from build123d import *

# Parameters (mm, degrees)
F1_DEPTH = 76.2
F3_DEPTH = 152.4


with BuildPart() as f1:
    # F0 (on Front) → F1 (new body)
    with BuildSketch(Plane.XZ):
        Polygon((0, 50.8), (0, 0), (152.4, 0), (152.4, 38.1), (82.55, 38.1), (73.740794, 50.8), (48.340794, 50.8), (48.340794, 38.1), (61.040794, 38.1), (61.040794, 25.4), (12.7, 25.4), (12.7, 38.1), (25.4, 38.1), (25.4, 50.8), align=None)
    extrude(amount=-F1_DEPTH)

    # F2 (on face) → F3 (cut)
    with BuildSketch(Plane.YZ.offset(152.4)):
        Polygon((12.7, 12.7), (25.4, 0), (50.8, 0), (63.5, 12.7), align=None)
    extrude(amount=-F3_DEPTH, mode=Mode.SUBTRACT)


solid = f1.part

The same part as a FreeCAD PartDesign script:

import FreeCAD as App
import Part
import Sketcher
from FreeCAD import Vector
Q = App.Units.Quantity


def add_polygon(sketch, points):
    """Adds a closed chain of lines whose ends are joined by coincident constraints."""
    first, n = sketch.GeometryCount, len(points)
    for a, b in zip(points, points[1:] + points[:1]):
        sketch.addGeometry(Part.LineSegment(App.Vector(*a, 0), App.Vector(*b, 0)), False)
    for i in range(n):
        sketch.addConstraint(Sketcher.Constraint("Coincident", first + i, 2, first + (i + 1) % n, 1))

doc = App.newDocument("Part")
body = doc.addObject("PartDesign::Body", "Body")

# Sketch on XZ plane
sketch1 = body.newObject("Sketcher::SketchObject", "Sketch")
sketch1.AttachmentSupport = (doc.getObject("XZ_Plane"), [""])
sketch1.MapMode = "FlatFace"
add_polygon(sketch1, [(0, 50.8), (0, 0), (152.4, 0), (152.4, 38.1), (82.55, 38.1), (73.740794, 50.8), (48.340794, 50.8), (48.340794, 38.1), (61.040794, 38.1), (61.040794, 25.4), (12.7, 25.4), (12.7, 38.1), (25.4, 38.1), (25.4, 50.8)])  # lines 0-13
sketch1.addConstraint([
    Sketcher.Constraint("Vertical", 0),
    Sketcher.Constraint("Horizontal", 1),
    Sketcher.Constraint("Vertical", 2),
    Sketcher.Constraint("Horizontal", 3),
    Sketcher.Constraint("Horizontal", 5),
    Sketcher.Constraint("Vertical", 6),
    Sketcher.Constraint("Horizontal", 7),
    Sketcher.Constraint("Vertical", 8),
    Sketcher.Constraint("Horizontal", 9),
    Sketcher.Constraint("Vertical", 10),
    Sketcher.Constraint("Horizontal", 11),
    Sketcher.Constraint("Vertical", 12),
    Sketcher.Constraint("Horizontal", 13),
    Sketcher.Constraint("Coincident", 0, 2, -1, 1),
    Sketcher.Constraint("Horizontal", 3, 2, 6, 2),
    Sketcher.Constraint("Horizontal", 7, 2, 10, 2),
    Sketcher.Constraint("Horizontal", 5, 2, 12, 2),
    Sketcher.Constraint("Equal", 7, 11),
    Sketcher.Constraint("Equal", 5, 13),
    Sketcher.Constraint("Equal", 11, 6),
    Sketcher.Constraint("Equal", 6, 8),
    Sketcher.Constraint("DistanceX", 1, 1, 1, 2, Q("6 in")),
    Sketcher.Constraint("DistanceX", 5, 2, 5, 1, Q("1 in")),
    Sketcher.Constraint("DistanceY", 0, 2, 0, 1, Q("2 in")),
    Sketcher.Constraint("DistanceX", 7, 1, 7, 2, Q("0.5 in")),
    Sketcher.Constraint("DistanceX", 3, 2, 3, 1, Q("2.75 in")),
    Sketcher.Constraint("DistanceX", 9, 2, 9, 1, 48.340794),
])
pad1 = body.newObject("PartDesign::Pad", "Pad")
pad1.Profile = sketch1
pad1.Length = Q("3 in")
pad1.Reversed = True

# Sketch on YZ plane
sketch2 = body.newObject("Sketcher::SketchObject", "Sketch001")
sketch2.AttachmentSupport = (doc.getObject("YZ_Plane"), [""])
sketch2.MapMode = "FlatFace"
sketch2.AttachmentOffset = App.Placement(Vector(0, 0, 6 * 25.4), App.Rotation())
add_polygon(sketch2, [(12.7, 12.7), (25.4, 0), (50.8, 0), (63.5, 12.7)])  # lines 0-3
sketch2.addConstraint([
    Sketcher.Constraint("Horizontal", 1),
    Sketcher.Constraint("Horizontal", 3),
    Sketcher.Constraint("PointOnObject", 0, 2, -1),
    Sketcher.Constraint("Perpendicular", 0, 2),
    Sketcher.Constraint("Equal", 0, 2),
    Sketcher.Constraint("DistanceX", 1, 1, 1, 2, Q("1 in")),
    Sketcher.Constraint("DistanceX", 3, 2, 3, 1, Q("2 in")),
    Sketcher.Constraint("DistanceX", -1, 1, 0, 2, Q("1 in")),
])
pocket1 = body.newObject("PartDesign::Pocket", "Pocket")
pocket1.Profile = sketch2
pocket1.Length = Q("6 in")

doc.recompute()
